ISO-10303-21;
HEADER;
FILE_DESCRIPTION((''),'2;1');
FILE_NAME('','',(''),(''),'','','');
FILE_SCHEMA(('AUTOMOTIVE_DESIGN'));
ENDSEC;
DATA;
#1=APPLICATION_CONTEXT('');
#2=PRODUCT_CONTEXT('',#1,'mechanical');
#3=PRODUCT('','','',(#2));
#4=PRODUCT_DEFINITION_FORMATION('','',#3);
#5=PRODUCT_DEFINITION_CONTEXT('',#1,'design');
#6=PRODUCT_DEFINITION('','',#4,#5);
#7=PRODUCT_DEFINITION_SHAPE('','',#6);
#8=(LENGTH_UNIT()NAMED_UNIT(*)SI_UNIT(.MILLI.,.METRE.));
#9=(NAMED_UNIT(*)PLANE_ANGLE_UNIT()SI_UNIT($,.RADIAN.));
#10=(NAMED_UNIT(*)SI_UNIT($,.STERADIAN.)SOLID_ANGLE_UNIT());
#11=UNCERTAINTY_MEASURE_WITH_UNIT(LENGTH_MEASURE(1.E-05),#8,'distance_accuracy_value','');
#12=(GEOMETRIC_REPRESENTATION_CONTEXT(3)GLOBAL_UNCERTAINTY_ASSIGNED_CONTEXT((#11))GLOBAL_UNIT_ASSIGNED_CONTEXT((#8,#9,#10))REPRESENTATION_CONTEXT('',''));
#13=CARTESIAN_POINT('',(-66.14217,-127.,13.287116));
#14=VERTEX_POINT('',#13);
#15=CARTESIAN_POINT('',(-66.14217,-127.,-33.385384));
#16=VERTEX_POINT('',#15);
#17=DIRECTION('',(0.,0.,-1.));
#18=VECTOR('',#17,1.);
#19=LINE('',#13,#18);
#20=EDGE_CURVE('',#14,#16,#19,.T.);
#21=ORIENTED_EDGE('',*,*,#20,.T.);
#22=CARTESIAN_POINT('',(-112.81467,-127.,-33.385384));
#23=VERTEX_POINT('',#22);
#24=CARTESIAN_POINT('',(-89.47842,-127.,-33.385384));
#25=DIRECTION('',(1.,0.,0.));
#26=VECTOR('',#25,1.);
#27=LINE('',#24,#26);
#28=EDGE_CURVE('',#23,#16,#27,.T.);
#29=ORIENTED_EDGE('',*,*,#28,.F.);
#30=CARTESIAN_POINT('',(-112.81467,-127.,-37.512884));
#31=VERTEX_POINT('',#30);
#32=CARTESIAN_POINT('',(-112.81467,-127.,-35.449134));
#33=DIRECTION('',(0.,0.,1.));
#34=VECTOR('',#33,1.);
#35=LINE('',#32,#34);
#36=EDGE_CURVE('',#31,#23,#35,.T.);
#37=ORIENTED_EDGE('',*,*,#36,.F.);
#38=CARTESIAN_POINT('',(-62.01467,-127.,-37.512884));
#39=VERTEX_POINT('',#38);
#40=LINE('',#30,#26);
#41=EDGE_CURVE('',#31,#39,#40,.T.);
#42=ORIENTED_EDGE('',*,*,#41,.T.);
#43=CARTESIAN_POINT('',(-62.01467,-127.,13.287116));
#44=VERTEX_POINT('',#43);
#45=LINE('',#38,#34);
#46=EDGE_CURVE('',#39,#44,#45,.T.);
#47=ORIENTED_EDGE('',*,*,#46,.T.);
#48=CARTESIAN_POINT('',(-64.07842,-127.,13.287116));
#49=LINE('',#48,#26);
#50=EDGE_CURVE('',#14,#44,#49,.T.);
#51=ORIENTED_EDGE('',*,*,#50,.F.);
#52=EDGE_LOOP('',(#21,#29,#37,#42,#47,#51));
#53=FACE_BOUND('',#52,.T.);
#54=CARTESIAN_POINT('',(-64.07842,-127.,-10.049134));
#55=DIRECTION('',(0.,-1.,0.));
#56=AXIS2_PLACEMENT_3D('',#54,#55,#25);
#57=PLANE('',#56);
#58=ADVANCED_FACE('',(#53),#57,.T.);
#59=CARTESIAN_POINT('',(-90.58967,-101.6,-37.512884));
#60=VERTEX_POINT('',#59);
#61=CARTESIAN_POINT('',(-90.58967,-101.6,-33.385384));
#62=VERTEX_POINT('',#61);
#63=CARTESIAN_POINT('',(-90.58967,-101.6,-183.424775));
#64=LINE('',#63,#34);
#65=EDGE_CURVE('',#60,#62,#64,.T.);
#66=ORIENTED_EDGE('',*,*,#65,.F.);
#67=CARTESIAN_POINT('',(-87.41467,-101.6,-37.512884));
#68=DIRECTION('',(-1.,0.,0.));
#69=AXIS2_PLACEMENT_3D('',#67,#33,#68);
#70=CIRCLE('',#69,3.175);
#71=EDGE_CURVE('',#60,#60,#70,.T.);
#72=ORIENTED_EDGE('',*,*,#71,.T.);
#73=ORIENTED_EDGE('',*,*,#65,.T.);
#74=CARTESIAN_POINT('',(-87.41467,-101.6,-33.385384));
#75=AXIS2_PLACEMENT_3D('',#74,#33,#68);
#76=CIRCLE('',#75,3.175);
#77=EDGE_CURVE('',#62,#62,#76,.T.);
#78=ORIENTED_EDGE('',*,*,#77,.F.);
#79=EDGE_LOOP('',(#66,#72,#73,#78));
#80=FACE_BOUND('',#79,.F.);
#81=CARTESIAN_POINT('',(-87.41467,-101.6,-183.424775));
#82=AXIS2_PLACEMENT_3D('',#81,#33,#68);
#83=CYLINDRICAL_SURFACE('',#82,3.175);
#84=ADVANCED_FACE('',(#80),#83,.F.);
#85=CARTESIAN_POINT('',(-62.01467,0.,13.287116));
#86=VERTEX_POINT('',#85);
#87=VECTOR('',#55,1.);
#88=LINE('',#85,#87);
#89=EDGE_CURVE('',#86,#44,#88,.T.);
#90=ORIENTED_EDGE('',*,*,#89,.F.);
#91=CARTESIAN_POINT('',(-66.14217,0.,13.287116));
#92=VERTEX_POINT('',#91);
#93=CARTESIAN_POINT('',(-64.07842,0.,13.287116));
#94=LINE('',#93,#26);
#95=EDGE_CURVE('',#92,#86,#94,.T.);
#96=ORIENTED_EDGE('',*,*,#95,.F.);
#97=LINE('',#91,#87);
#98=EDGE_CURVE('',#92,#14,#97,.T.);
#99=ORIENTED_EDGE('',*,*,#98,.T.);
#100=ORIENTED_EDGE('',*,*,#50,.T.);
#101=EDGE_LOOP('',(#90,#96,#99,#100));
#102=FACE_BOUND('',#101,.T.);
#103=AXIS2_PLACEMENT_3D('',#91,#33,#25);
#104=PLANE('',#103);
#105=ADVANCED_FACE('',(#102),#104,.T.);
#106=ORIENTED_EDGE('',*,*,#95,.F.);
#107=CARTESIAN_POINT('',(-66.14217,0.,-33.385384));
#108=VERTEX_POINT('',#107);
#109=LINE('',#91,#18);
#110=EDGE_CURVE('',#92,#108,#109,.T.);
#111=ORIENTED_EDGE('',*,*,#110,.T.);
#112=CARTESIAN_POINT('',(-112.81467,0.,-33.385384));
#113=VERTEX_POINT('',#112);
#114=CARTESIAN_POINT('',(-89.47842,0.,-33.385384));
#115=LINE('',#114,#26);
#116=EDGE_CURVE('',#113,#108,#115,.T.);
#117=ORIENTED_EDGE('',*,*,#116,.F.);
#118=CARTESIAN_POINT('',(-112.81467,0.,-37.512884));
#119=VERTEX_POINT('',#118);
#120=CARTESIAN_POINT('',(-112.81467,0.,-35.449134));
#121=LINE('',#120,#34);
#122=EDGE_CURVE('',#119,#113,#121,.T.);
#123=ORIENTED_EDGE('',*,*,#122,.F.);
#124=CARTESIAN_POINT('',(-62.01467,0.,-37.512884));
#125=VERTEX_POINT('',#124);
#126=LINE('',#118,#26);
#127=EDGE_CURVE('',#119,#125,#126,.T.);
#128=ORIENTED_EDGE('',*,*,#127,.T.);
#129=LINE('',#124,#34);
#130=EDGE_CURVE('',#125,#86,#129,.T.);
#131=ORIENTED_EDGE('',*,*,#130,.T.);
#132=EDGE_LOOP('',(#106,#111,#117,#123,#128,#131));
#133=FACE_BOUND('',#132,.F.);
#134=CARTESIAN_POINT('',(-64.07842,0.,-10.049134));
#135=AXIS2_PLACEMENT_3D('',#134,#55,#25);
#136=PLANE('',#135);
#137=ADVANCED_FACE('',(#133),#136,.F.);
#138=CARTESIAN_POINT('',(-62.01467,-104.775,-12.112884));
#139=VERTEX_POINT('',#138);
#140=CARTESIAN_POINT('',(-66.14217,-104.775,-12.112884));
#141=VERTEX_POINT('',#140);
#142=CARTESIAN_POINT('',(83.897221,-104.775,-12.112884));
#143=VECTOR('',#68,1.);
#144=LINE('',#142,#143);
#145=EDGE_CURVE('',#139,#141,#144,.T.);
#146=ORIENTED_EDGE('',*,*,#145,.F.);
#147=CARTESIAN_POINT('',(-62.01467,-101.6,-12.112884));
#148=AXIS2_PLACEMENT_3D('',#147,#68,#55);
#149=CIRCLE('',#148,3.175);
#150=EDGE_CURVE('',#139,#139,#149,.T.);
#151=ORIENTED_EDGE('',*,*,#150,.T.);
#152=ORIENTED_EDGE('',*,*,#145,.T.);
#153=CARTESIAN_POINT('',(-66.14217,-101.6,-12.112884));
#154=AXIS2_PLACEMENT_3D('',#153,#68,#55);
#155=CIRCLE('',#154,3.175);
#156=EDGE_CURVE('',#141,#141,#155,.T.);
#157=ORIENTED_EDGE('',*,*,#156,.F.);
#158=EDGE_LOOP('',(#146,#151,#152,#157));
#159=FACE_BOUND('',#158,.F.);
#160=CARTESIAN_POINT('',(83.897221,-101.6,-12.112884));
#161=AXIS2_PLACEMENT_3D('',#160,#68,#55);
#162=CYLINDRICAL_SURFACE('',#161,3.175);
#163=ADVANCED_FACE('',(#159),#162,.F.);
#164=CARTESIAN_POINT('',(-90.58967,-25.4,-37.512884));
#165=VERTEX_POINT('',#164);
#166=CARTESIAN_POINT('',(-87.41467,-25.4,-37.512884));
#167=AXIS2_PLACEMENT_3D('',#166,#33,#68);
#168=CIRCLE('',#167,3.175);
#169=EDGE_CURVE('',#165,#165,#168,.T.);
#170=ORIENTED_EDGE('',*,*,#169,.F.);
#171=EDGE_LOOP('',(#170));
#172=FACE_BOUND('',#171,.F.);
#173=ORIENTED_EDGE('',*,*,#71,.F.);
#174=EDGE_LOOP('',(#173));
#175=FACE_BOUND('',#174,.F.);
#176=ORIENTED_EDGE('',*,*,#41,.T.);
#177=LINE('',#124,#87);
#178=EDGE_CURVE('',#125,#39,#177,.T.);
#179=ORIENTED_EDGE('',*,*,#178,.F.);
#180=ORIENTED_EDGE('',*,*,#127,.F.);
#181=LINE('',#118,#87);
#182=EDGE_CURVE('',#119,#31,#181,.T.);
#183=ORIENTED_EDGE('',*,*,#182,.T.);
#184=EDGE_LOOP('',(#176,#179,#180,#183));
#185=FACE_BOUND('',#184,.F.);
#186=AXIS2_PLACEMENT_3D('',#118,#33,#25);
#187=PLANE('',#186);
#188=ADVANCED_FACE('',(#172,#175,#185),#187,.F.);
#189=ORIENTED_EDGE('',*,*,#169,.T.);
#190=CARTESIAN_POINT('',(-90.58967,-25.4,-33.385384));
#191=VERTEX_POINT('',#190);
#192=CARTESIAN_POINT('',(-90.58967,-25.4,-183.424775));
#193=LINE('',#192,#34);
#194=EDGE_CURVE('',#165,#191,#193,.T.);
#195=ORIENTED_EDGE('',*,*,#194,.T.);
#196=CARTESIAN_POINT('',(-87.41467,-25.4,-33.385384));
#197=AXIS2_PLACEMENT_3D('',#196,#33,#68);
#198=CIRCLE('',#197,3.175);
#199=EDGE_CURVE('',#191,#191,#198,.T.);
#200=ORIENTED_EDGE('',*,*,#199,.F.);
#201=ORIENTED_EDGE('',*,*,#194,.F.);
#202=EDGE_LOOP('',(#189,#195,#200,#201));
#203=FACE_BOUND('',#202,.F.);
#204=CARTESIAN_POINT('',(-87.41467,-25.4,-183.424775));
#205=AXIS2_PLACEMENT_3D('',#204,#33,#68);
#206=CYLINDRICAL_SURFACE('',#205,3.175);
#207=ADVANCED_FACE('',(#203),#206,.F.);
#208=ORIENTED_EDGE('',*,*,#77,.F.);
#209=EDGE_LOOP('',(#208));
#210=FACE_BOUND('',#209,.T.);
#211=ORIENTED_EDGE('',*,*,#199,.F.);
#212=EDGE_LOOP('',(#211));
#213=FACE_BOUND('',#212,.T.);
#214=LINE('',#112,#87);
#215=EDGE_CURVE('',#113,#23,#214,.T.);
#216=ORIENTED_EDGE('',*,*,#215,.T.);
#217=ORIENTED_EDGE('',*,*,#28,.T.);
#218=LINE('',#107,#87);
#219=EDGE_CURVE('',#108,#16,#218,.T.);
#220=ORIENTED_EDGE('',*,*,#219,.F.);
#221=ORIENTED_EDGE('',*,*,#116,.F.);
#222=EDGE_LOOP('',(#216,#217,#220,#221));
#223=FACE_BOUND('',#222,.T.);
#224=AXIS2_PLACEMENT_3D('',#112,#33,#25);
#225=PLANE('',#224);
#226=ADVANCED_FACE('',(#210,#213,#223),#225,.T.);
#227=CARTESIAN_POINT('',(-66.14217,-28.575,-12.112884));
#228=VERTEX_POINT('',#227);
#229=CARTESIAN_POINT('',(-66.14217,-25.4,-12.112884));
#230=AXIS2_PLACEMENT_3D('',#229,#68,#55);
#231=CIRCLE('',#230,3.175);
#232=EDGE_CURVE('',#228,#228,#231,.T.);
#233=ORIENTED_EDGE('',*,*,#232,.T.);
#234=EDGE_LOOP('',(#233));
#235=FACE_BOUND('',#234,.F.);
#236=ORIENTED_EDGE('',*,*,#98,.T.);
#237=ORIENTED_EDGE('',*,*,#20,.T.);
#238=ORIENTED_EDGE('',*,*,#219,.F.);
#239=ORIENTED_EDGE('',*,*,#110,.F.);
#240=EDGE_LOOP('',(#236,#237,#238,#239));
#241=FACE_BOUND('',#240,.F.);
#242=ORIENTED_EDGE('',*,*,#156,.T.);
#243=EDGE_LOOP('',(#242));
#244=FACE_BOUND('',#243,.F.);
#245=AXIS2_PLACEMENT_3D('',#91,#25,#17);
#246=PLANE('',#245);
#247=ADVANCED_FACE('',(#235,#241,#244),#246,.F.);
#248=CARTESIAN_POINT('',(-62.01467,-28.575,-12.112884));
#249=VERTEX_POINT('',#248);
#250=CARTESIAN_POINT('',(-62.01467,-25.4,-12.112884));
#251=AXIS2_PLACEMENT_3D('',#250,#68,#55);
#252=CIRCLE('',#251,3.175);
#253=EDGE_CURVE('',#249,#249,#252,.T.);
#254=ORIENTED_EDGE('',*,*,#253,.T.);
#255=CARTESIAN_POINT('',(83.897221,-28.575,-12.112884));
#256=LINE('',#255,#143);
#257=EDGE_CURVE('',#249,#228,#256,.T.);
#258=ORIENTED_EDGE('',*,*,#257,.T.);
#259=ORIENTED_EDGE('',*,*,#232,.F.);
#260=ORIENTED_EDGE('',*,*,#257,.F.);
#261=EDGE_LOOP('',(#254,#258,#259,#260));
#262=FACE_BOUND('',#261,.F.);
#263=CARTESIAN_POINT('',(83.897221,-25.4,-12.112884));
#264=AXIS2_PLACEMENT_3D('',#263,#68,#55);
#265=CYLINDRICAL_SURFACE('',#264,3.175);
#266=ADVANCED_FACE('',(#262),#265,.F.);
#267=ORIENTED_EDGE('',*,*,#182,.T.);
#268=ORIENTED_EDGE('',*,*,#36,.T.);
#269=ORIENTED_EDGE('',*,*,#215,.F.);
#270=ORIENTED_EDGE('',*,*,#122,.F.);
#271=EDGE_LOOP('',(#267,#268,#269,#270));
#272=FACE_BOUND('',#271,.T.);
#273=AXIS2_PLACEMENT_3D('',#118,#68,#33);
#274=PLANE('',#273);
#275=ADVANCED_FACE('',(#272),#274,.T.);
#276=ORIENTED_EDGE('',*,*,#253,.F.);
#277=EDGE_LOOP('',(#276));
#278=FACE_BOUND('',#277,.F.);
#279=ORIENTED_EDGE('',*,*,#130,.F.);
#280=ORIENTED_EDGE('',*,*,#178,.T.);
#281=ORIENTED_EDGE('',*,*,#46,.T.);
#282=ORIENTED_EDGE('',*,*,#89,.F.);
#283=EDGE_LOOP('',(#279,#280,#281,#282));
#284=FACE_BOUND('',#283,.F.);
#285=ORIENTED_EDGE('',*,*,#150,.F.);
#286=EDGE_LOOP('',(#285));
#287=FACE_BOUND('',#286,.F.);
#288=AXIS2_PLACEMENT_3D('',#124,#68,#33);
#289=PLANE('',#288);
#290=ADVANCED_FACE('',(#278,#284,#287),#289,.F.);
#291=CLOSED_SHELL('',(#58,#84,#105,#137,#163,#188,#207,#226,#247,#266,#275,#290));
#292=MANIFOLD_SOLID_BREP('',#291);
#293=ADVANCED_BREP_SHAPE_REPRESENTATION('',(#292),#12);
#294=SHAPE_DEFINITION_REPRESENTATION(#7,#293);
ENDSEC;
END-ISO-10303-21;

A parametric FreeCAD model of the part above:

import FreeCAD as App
import Part
import Sketcher
Q = App.Units.Quantity

doc = App.newDocument("Part")
body = doc.addObject("PartDesign::Body", "Body")

sketch1 = doc.addObject("Sketcher::SketchObject", "Sketch")
body.addObject(sketch1)
sketch1.AttachmentSupport = (doc.XZ_Plane, [""])
sketch1.MapMode = "FlatFace"
sketch1.addGeometry([
    Part.LineSegment(App.Vector(-66.14217, 13.287116, 0), App.Vector(-66.14217, -33.385384, 0)),
    Part.LineSegment(App.Vector(-66.14217, -33.385384, 0), App.Vector(-112.81467, -33.385384, 0)),
    Part.LineSegment(App.Vector(-112.81467, -33.385384, 0), App.Vector(-112.81467, -37.512884, 0)),
    Part.LineSegment(App.Vector(-112.81467, -37.512884, 0), App.Vector(-62.01467, -37.512884, 0)),
    Part.LineSegment(App.Vector(-62.01467, -37.512884, 0), App.Vector(-62.01467, 13.287116, 0)),
    Part.LineSegment(App.Vector(-62.01467, 13.287116, 0), App.Vector(-66.14217, 13.287116, 0)),
], False)
sketch1.addConstraint([
    Sketcher.Constraint("Coincident", 0, 2, 1, 1),
    Sketcher.Constraint("Coincident", 1, 2, 2, 1),
    Sketcher.Constraint("Coincident", 2, 2, 3, 1),
    Sketcher.Constraint("Coincident", 3, 2, 4, 1),
    Sketcher.Constraint("Coincident", 4, 2, 5, 1),
    Sketcher.Constraint("Coincident", 5, 2, 0, 1),
    Sketcher.Constraint("Vertical", 0),
    Sketcher.Constraint("Horizontal", 1),
    Sketcher.Constraint("Vertical", 2),
    Sketcher.Constraint("Horizontal", 3),
    Sketcher.Constraint("Vertical", 4),
    Sketcher.Constraint("Horizontal", 5),
    Sketcher.Constraint("Equal", 1, 0),
    Sketcher.Constraint("Equal", 5, 2),
    Sketcher.Constraint("DistanceX", 3, 1, 3, 2, Q("2 in")),
    Sketcher.Constraint("DistanceX", 1, 2, 1, 1, Q("1.8375 in")),
    Sketcher.Constraint("DistanceX", 0, 2, -1, 1, 66.14217),
    Sketcher.Constraint("DistanceY", 0, 2, -1, 1, 33.385384),
])
pad1 = doc.addObject("PartDesign::Pad", "Pad")
body.addObject(pad1)
pad1.Profile = sketch1
pad1.Length = Q("5 in")

sketch2 = doc.addObject("Sketcher::SketchObject", "Sketch001")
body.addObject(sketch2)
sketch2.AttachmentSupport = (doc.YZ_Plane, [""])
sketch2.MapMode = "FlatFace"
sketch2.AttachmentOffset = App.Placement(App.Vector(0, 0, -62.01467), App.Rotation())
sketch2.addGeometry(Part.Circle(App.Vector(-101.6, -12.112884, 0), App.Vector(0, 0, 1), 3.175), False)
sketch2.addConstraint([
    Sketcher.Constraint("Diameter", 0, Q("0.25 in")),
    Sketcher.Constraint("DistanceX", 0, 3, -1, 1, Q("4 in")),
    Sketcher.Constraint("DistanceY", 0, 3, -1, 1, 12.112884),
])
doc.recompute()
hole = doc.addObject("PartDesign::Hole", "Hole")
body.addObject(hole)
hole.Profile = sketch2
hole.ThreadType = "None"
hole.Diameter = Q("0.25 in")
hole.DepthType = "ThroughAll"

sketch3 = doc.addObject("Sketcher::SketchObject", "Sketch002")
body.addObject(sketch3)
sketch3.AttachmentSupport = (doc.XY_Plane, [""])
sketch3.MapMode = "FlatFace"
sketch3.AttachmentOffset = App.Placement(App.Vector(0, 0, -37.512884), App.Rotation())
sketch3.addGeometry(Part.Circle(App.Vector(-87.41467, -101.6, 0), App.Vector(0, 0, 1), 3.175), False)
sketch3.addConstraint([
    Sketcher.Constraint("Diameter", 0, Q("0.25 in")),
    Sketcher.Constraint("DistanceY", 0, 3, -1, 1, Q("4 in")),
    Sketcher.Constraint("DistanceX", 0, 3, -1, 1, 87.41467),
])
doc.recompute()
hole2 = doc.addObject("PartDesign::Hole", "Hole001")
body.addObject(hole2)
hole2.Profile = sketch3
hole2.ThreadType = "None"
hole2.Diameter = Q("0.25 in")
hole2.DepthType = "ThroughAll"
hole2.Reversed = True

sketch4 = doc.addObject("Sketcher::SketchObject", "Sketch003")
body.addObject(sketch4)
sketch4.AttachmentSupport = (doc.YZ_Plane, [""])
sketch4.MapMode = "FlatFace"
sketch4.AttachmentOffset = App.Placement(App.Vector(0, 0, -62.01467), App.Rotation())
sketch4.addGeometry(Part.Circle(App.Vector(-25.4, -12.112884, 0), App.Vector(0, 0, 1), 3.175), False)
sketch4.addConstraint([
    Sketcher.Constraint("Diameter", 0, Q("0.25 in")),
    Sketcher.Constraint("DistanceX", 0, 3, -1, 1, Q("1 in")),
    Sketcher.Constraint("DistanceY", 0, 3, -1, 1, 12.112884),
])
doc.recompute()
hole3 = doc.addObject("PartDesign::Hole", "Hole002")
body.addObject(hole3)
hole3.Profile = sketch4
hole3.ThreadType = "None"
hole3.Diameter = Q("0.25 in")
hole3.DepthType = "ThroughAll"

sketch5 = doc.addObject("Sketcher::SketchObject", "Sketch004")
body.addObject(sketch5)
sketch5.AttachmentSupport = (doc.XY_Plane, [""])
sketch5.MapMode = "FlatFace"
sketch5.AttachmentOffset = App.Placement(App.Vector(0, 0, -37.512884), App.Rotation())
sketch5.addGeometry(Part.Circle(App.Vector(-87.41467, -25.4, 0), App.Vector(0, 0, 1), 3.175), False)
sketch5.addConstraint([
    Sketcher.Constraint("Diameter", 0, Q("0.25 in")),
    Sketcher.Constraint("DistanceY", 0, 3, -1, 1, Q("1 in")),
    Sketcher.Constraint("DistanceX", 0, 3, -1, 1, 87.41467),
])
doc.recompute()
hole4 = doc.addObject("PartDesign::Hole", "Hole003")
body.addObject(hole4)
hole4.Profile = sketch5
hole4.ThreadType = "None"
hole4.Diameter = Q("0.25 in")
hole4.DepthType = "ThroughAll"
hole4.Reversed = True

doc.recompute()
